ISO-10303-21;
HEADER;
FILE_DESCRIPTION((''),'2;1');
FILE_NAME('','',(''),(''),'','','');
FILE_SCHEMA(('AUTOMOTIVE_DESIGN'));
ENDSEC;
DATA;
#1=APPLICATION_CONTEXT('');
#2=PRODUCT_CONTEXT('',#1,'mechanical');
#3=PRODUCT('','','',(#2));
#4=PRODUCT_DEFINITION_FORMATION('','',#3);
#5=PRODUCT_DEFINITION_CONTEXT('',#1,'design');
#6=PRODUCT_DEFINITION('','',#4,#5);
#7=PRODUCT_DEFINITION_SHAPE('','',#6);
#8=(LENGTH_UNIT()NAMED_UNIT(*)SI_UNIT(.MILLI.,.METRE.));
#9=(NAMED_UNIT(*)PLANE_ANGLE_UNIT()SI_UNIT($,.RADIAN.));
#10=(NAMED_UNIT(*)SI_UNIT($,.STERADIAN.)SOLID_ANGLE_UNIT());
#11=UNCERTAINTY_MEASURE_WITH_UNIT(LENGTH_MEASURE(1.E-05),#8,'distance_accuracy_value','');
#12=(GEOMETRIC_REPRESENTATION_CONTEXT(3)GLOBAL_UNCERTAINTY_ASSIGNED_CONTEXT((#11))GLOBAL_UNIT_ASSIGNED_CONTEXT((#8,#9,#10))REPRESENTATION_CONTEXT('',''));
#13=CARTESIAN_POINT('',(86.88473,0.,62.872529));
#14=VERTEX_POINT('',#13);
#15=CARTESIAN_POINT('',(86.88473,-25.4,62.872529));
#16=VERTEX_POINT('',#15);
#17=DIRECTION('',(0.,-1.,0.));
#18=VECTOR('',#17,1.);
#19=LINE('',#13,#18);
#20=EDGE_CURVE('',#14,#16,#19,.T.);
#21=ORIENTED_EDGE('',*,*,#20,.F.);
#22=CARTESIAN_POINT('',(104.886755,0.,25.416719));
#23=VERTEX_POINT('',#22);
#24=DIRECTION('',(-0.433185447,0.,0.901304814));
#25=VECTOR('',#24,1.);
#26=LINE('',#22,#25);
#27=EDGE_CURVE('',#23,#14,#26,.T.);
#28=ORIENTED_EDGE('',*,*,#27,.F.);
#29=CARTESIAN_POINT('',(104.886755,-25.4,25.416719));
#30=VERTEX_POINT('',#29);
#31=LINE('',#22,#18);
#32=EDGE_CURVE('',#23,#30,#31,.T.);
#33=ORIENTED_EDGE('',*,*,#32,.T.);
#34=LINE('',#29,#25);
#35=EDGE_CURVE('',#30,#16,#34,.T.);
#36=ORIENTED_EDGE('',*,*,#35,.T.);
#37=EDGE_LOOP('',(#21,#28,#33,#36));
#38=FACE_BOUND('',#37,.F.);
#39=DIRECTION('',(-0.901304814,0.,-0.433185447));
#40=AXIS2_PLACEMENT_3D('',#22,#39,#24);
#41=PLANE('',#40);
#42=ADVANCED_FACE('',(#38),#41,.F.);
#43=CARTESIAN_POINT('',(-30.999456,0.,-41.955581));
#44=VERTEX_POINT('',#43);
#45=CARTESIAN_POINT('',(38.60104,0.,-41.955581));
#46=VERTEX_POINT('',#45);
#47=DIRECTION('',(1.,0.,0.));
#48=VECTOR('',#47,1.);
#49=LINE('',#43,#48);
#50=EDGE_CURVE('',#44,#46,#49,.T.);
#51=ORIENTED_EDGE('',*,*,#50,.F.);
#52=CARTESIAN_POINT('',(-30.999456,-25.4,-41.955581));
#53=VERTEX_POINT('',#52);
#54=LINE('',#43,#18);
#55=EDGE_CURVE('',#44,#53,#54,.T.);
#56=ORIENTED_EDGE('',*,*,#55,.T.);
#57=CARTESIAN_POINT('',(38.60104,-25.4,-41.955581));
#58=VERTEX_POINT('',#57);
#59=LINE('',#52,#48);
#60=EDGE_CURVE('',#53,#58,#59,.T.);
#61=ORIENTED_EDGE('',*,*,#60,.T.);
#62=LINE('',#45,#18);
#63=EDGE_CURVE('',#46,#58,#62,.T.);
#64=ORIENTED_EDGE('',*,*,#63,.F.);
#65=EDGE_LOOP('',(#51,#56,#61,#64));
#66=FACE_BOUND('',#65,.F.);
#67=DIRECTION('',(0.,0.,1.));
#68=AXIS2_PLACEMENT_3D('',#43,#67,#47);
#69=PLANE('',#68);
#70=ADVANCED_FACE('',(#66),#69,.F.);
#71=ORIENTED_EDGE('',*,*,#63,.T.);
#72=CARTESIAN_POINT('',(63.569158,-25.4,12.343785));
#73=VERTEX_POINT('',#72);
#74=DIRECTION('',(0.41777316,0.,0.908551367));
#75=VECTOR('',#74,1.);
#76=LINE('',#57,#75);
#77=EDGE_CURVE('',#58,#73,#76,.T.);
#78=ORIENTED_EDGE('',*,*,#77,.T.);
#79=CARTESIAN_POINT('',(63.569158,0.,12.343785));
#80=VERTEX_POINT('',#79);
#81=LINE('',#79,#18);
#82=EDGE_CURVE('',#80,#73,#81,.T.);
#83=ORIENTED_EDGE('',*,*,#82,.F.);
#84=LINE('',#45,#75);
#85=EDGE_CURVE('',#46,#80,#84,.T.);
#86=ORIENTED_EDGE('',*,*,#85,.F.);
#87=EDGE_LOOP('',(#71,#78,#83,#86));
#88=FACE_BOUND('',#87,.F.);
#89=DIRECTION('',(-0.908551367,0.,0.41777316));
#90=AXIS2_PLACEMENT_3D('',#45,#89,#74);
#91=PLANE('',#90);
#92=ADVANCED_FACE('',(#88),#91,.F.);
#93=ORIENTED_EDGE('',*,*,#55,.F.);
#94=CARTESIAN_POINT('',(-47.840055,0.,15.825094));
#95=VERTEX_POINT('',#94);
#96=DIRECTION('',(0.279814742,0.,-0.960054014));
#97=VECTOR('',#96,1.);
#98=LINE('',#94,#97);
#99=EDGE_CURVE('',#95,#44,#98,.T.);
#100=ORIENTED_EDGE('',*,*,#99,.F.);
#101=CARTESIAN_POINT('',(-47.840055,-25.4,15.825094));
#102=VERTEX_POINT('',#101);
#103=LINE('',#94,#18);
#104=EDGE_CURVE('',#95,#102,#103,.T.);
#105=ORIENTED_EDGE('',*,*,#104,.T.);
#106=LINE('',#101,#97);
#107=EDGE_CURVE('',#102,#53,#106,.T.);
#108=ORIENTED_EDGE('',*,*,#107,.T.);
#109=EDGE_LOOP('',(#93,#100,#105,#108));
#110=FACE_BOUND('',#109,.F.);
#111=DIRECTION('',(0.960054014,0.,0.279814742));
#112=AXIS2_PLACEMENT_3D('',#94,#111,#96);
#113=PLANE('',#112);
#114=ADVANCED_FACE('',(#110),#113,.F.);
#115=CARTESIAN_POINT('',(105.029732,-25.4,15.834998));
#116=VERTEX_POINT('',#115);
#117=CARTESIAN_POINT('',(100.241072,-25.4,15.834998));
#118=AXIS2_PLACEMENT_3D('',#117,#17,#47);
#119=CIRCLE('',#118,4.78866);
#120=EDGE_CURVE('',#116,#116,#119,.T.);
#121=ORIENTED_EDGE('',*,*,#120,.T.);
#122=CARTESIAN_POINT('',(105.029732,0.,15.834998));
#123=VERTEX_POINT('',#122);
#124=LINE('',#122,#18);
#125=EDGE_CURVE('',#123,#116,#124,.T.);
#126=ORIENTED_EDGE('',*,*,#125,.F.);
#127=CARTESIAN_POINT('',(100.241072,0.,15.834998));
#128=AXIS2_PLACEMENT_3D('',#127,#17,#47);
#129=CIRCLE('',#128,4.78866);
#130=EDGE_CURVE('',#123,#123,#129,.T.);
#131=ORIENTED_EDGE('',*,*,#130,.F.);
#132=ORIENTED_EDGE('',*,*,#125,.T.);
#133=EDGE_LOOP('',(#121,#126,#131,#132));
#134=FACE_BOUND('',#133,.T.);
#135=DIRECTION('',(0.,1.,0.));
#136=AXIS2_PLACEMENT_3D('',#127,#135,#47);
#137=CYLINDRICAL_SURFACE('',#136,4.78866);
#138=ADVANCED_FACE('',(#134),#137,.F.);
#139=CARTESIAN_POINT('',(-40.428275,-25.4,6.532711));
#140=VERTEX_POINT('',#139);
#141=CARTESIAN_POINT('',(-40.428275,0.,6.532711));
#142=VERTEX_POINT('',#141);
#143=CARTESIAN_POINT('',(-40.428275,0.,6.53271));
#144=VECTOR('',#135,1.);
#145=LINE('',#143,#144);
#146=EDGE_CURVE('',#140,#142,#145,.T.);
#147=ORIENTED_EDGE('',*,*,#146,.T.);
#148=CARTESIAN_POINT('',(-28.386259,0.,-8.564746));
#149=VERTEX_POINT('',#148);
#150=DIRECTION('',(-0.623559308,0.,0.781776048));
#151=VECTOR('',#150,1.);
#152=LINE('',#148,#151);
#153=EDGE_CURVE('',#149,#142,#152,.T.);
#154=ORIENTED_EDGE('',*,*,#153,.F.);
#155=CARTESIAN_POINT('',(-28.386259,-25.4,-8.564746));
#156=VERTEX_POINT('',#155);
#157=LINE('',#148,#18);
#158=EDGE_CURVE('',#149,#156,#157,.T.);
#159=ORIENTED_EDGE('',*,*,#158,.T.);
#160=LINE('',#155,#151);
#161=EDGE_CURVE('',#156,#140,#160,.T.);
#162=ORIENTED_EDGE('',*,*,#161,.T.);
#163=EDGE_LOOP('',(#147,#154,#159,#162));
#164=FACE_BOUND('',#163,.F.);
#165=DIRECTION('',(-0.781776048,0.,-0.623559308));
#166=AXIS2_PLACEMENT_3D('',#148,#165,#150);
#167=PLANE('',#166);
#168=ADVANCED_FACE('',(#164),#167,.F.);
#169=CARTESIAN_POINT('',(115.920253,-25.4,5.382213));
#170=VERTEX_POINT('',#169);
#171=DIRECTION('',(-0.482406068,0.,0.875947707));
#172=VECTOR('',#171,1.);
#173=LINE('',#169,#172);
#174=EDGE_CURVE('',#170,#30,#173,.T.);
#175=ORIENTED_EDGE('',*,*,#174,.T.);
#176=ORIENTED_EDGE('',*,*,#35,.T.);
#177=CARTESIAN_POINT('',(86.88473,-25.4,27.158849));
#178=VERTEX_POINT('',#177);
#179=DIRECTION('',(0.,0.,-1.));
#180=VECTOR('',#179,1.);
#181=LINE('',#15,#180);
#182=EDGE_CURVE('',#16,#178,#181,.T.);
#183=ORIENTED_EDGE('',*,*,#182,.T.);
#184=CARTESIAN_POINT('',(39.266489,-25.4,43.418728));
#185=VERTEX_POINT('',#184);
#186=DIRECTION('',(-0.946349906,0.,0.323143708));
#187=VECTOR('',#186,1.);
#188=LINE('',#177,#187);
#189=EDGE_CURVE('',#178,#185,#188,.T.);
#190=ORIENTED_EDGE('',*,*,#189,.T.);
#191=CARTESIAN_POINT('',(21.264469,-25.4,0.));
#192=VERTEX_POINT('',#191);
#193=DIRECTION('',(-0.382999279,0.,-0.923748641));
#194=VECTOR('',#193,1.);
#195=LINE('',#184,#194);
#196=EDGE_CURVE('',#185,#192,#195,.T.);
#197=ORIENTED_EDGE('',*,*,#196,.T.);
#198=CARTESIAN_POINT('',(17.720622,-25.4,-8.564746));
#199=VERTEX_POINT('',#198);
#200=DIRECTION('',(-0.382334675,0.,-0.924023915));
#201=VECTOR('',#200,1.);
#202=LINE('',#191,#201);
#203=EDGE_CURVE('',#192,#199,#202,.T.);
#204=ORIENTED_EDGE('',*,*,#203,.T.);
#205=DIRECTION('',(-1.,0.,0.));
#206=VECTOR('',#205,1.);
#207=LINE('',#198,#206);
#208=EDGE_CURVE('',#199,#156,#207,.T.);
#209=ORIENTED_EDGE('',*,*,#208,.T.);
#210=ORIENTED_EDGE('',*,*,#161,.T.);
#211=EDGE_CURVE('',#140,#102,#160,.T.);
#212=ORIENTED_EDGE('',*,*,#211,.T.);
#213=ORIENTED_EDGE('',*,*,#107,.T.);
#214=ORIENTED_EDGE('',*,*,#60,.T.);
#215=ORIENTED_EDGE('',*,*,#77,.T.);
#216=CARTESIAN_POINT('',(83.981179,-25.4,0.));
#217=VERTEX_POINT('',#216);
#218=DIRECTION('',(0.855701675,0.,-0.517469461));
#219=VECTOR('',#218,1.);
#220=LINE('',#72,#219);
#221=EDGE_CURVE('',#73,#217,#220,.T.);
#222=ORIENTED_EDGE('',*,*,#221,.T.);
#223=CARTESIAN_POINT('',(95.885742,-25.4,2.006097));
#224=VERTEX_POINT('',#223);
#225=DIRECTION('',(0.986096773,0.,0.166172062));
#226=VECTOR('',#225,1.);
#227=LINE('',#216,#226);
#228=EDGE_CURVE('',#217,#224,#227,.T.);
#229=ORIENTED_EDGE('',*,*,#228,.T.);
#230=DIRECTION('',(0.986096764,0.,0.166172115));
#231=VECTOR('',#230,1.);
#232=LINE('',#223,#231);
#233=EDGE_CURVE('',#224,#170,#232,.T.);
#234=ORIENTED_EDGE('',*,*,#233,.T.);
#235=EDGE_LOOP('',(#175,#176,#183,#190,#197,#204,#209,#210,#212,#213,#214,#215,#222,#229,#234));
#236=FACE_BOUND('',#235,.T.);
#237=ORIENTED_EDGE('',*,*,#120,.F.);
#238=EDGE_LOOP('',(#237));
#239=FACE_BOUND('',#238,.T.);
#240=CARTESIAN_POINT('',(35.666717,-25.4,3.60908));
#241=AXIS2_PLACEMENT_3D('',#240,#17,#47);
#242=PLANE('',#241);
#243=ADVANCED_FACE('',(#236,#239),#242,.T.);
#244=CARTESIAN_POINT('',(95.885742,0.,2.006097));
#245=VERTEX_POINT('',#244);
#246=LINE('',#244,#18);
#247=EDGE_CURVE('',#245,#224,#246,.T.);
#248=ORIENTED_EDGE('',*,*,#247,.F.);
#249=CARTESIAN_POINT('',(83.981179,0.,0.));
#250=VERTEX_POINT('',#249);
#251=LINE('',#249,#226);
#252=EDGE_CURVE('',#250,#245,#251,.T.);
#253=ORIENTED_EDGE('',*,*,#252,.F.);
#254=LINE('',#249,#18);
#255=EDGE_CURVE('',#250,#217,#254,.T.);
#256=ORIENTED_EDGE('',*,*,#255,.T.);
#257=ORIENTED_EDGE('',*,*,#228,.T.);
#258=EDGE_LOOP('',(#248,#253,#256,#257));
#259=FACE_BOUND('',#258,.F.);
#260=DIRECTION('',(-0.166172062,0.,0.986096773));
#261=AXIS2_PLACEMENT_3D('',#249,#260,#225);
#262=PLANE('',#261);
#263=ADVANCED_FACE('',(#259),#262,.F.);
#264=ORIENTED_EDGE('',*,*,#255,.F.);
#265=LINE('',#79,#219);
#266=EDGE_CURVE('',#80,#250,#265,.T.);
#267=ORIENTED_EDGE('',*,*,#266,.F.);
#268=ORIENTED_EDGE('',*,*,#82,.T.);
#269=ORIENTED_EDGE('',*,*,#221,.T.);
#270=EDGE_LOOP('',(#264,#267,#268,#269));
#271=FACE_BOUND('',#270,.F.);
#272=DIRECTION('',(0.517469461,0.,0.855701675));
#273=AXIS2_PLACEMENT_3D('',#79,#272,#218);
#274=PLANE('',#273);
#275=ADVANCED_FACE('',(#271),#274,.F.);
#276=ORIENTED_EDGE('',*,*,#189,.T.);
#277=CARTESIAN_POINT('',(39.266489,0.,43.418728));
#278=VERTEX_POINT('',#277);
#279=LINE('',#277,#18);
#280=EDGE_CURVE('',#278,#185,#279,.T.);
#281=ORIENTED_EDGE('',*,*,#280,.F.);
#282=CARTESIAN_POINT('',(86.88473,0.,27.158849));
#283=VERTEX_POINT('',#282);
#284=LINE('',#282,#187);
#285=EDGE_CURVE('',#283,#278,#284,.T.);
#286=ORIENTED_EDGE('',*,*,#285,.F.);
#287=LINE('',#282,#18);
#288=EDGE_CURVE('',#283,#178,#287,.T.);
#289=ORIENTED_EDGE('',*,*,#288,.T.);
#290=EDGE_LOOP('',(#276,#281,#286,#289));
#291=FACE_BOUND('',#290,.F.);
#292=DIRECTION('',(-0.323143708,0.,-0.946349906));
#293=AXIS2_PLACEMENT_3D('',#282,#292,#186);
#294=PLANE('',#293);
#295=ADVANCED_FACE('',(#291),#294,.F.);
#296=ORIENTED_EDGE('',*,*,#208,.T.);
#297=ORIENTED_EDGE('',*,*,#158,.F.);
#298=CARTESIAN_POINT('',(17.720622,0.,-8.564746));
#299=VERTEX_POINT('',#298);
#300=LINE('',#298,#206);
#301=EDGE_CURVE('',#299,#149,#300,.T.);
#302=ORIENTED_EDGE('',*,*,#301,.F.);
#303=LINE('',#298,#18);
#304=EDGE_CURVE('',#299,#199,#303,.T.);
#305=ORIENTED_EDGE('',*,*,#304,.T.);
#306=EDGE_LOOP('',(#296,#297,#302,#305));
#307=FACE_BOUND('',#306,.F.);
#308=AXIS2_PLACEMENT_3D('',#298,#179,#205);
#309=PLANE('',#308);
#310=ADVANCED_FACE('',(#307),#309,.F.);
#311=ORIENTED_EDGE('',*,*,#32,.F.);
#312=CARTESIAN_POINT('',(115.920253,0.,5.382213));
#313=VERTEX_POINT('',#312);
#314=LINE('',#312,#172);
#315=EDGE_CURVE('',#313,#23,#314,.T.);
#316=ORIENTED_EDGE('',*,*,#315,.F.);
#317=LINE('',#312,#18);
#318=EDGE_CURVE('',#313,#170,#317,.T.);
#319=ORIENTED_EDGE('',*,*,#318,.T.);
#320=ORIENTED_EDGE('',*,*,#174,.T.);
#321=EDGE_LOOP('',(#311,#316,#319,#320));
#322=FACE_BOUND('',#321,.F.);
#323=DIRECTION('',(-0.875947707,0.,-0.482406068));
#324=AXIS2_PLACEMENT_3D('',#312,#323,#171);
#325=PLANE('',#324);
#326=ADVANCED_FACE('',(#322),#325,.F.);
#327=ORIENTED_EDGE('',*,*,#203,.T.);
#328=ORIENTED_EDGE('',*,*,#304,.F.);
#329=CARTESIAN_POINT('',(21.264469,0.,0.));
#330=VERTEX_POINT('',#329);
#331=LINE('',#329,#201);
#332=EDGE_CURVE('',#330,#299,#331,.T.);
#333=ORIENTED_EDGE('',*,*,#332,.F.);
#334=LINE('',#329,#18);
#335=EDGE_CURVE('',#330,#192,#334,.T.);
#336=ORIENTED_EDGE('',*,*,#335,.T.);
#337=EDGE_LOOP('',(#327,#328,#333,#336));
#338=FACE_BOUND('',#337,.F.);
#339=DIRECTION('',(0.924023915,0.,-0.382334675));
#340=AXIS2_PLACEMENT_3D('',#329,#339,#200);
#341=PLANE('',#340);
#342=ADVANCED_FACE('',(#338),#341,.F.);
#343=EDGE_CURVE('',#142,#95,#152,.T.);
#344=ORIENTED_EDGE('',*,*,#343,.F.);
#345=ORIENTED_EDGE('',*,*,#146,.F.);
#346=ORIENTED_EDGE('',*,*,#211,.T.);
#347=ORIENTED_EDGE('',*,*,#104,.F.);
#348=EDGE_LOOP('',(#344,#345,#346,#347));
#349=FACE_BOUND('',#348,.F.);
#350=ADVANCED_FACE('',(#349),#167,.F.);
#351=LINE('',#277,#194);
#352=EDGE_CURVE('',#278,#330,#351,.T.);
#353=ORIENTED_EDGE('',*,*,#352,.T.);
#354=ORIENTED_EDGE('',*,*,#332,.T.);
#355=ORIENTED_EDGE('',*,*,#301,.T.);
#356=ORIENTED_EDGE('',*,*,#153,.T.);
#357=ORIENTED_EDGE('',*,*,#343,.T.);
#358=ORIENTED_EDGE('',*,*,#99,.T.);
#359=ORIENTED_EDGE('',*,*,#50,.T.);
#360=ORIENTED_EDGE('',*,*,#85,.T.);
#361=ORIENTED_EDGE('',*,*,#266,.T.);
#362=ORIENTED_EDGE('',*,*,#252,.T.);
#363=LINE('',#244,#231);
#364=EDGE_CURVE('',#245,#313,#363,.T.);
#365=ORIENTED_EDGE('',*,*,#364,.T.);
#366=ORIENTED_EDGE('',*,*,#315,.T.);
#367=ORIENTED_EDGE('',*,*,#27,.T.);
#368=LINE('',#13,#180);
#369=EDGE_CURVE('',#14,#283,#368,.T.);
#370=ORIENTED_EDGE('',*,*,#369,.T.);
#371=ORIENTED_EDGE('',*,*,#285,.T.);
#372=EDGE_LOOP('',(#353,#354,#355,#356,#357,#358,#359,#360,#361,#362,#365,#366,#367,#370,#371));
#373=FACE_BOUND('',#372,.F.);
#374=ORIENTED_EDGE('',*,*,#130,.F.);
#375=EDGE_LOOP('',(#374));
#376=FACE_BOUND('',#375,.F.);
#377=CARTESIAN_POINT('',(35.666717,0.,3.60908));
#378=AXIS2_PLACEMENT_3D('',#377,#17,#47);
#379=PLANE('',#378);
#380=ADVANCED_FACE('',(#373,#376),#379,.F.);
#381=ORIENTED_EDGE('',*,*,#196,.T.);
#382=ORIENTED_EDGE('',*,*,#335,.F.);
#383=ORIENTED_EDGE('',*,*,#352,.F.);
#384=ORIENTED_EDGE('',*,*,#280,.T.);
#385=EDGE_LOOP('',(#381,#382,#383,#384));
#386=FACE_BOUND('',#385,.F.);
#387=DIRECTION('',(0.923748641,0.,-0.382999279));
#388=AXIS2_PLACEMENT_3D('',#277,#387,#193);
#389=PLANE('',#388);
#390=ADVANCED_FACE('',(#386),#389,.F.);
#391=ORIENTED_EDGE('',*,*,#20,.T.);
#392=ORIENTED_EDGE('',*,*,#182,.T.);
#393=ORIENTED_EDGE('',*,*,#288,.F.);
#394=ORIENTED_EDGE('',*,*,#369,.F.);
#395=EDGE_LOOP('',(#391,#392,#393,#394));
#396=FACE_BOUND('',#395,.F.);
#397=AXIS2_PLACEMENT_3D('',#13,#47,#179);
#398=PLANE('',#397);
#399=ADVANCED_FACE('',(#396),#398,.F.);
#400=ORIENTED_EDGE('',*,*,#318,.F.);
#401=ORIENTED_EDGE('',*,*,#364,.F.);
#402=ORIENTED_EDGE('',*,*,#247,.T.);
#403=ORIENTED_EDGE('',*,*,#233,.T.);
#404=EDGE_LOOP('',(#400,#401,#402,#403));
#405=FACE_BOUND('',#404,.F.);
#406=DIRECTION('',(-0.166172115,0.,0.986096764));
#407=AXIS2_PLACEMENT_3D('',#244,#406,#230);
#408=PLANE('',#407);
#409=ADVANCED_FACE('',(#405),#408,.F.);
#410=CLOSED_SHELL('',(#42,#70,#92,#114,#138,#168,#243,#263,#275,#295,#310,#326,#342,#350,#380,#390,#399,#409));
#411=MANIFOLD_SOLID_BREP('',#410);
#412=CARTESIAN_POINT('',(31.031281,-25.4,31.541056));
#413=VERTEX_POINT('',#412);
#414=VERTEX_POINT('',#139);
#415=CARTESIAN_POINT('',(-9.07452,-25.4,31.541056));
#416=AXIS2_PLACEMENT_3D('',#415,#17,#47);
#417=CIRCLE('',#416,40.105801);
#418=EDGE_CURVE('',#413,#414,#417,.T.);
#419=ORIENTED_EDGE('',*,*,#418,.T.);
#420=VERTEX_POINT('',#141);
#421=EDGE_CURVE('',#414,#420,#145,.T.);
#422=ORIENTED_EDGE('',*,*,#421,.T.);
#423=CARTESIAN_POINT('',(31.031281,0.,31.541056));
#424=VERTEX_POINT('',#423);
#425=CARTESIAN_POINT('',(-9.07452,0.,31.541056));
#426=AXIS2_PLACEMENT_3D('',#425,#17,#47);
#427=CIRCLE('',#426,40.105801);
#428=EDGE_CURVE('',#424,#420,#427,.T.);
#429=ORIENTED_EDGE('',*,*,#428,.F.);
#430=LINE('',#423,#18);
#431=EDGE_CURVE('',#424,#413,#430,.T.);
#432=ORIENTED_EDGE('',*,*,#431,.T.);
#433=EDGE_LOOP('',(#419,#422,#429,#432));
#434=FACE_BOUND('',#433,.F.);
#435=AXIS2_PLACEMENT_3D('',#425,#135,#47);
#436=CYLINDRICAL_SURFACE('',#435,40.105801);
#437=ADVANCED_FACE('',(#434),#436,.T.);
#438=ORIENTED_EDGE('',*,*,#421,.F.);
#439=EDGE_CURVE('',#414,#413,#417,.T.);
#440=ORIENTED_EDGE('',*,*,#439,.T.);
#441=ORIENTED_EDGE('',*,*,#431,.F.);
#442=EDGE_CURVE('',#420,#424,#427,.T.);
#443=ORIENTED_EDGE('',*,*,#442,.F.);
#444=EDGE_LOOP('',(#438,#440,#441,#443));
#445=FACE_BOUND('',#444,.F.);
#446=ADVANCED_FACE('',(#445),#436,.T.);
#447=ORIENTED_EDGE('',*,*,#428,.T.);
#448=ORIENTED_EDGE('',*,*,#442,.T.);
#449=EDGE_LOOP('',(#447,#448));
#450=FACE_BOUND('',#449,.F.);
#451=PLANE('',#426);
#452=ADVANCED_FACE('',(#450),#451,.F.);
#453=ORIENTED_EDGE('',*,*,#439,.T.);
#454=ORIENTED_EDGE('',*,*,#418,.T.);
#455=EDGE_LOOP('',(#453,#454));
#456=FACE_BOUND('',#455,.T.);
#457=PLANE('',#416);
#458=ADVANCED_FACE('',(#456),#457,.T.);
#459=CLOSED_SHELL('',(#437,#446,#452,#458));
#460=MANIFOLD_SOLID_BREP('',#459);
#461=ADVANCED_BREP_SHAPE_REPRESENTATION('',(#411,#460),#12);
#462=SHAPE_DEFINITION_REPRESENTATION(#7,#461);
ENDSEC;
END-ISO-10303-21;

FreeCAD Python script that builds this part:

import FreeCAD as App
import Part
import Sketcher
Q = App.Units.Quantity

doc = App.newDocument("Part")
params = doc.addObject("Spreadsheet::Sheet", "Params")
for row, (alias, value) in enumerate([
    ("pad1_length", "1 in"),
], start=1):
    params.set(f"A{row}", alias)
    params.set(f"B{row}", "=" + value)
    params.setAlias(f"B{row}", alias)

body = doc.addObject("PartDesign::Body", "Body")
body.AllowCompound = True

# Sketch on XZ plane
sketch1 = body.newObject("Sketcher::SketchObject", "Sketch")
sketch1.AttachmentSupport = (doc.getObject("XZ_Plane"), [""])
sketch1.MapMode = "FlatFace"
sketch1.addGeometry([
    Part.LineSegment(App.Vector(38.6, -42, 0), App.Vector(63.6, 12.3, 0)),  # 0
    Part.LineSegment(App.Vector(63.6, 12.3, 0), App.Vector(84, 0, 0)),  # 1
    Part.LineSegment(App.Vector(84, 0, 0), App.Vector(95.9, 2, 0)),  # 2
    Part.LineSegment(App.Vector(95.9, 2, 0), App.Vector(115.9, 5.4, 0)),  # 3
    Part.LineSegment(App.Vector(115.9, 5.4, 0), App.Vector(104.9, 25.4, 0)),  # 4
    Part.LineSegment(App.Vector(104.9, 25.4, 0), App.Vector(86.9, 62.9, 0)),  # 5
    Part.LineSegment(App.Vector(86.9, 62.9, 0), App.Vector(86.9, 27.2, 0)),  # 6
    Part.LineSegment(App.Vector(86.9, 27.2, 0), App.Vector(39.3, 43.4, 0)),  # 7
    Part.LineSegment(App.Vector(39.3, 43.4, 0), App.Vector(21.3, 0, 0)),  # 8
    Part.LineSegment(App.Vector(21.3, 0, 0), App.Vector(17.7, -8.6, 0)),  # 9
    Part.LineSegment(App.Vector(17.7, -8.6, 0), App.Vector(-28.4, -8.6, 0)),  # 10
    Part.LineSegment(App.Vector(-28.4, -8.6, 0), App.Vector(-40.4, 6.5, 0)),  # 11
    Part.LineSegment(App.Vector(-40.4, 6.5, 0), App.Vector(-47.8, 15.8, 0)),  # 12
    Part.LineSegment(App.Vector(-47.8, 15.8, 0), App.Vector(-31, -42, 0)),  # 13
    Part.LineSegment(App.Vector(-31, -42, 0), App.Vector(38.6, -42, 0)),  # 14
    Part.Circle(App.Vector(100.2, 15.8, 0), App.Vector(0, 0, 1), 4.8),  # 15
    Part.Circle(App.Vector(-9.1, 31.5, 0), App.Vector(0, 0, 1), 40.1),  # 16
], False)
sketch1.addConstraint([
    Sketcher.Constraint("Coincident", 0, 2, 1, 1),
    Sketcher.Constraint("Coincident", 1, 2, 2, 1),
    Sketcher.Constraint("Coincident", 2, 2, 3, 1),
    Sketcher.Constraint("Coincident", 3, 2, 4, 1),
    Sketcher.Constraint("Coincident", 4, 2, 5, 1),
    Sketcher.Constraint("Coincident", 5, 2, 6, 1),
    Sketcher.Constraint("Coincident", 6, 2, 7, 1),
    Sketcher.Constraint("Coincident", 7, 2, 8, 1),
    Sketcher.Constraint("Coincident", 8, 2, 9, 1),
    Sketcher.Constraint("Coincident", 9, 2, 10, 1),
    Sketcher.Constraint("Coincident", 10, 2, 11, 1),
    Sketcher.Constraint("Coincident", 11, 2, 12, 1),
    Sketcher.Constraint("Coincident", 12, 2, 13, 1),
    Sketcher.Constraint("Coincident", 13, 2, 14, 1),
    Sketcher.Constraint("Coincident", 14, 2, 0, 1),
    Sketcher.Constraint("Vertical", 6),
    Sketcher.Constraint("Horizontal", 10),
    Sketcher.Constraint("Horizontal", 14),
    Sketcher.Constraint("PointOnObject", 1, 2, -1),
    Sketcher.Constraint("PointOnObject", 8, 2, -1),
    Sketcher.Constraint("Parallel", 2, 3),
    Sketcher.Constraint("Parallel", 11, 12),
    Sketcher.Constraint("Diameter", 16, 80.211602),
    Sketcher.Constraint("Diameter", 15, 9.57732),
    Sketcher.Constraint("DistanceX", -1, 1, 4, 2, Q("4.1293998 in")),
    Sketcher.Constraint("DistanceY", 13, 2, 10, 2, Q("1.3145998 in")),
    Sketcher.Constraint("DistanceX", 10, 2, 10, 1, 46.106881),
    Sketcher.Constraint("DistanceY", 6, 2, 6, 1, 35.71368),
    Sketcher.Constraint("DistanceX", 16, 3, 1, 2, 93.055699),
    Sketcher.Constraint("DistanceY", 2, 2, 15, 3, 13.828901),
    Sketcher.Constraint("DistanceX", 4, 2, 3, 2, 11.033498),
    Sketcher.Constraint("DistanceY", 7, 2, 5, 2, 19.453801),
    Sketcher.Constraint("DistanceY", 9, 2, 16, 3, 40.105802),
    Sketcher.Constraint("DistanceX", 12, 2, 13, 2, 16.840599),
    Sketcher.Constraint("Distance", 2, 12.072408),
    Sketcher.Constraint("Distance", 8, 47.002752),
    Sketcher.Constraint("Distance", 11, 19.311741),
    Sketcher.Constraint("DistanceX", 14, 1, 14, 2, 69.600496),
    Sketcher.Constraint("DistanceX", 16, 3, -1, 1, 9.07452),
    Sketcher.Constraint("DistanceX", -1, 1, 0, 2, 63.569158),
    Sketcher.Constraint("DistanceX", -1, 1, 2, 2, 95.885742),
    Sketcher.Constraint("DistanceY", -1, 1, 4, 2, 25.416719),
    Sketcher.Constraint("DistanceX", -1, 1, 5, 2, 86.88473),
    Sketcher.Constraint("DistanceY", -1, 1, 5, 2, 62.872529),
    Sketcher.Constraint("DistanceX", -1, 1, 7, 2, 39.266489),
    Sketcher.Constraint("DistanceX", -1, 1, 9, 2, 17.720622),
    Sketcher.Constraint("DistanceY", -1, 1, 11, 2, 6.53271),
    Sketcher.Constraint("DistanceY", 13, 2, -1, 1, 41.955581),
    Sketcher.Constraint("DistanceX", -1, 1, 14, 2, 38.60104),
    Sketcher.Constraint("DistanceY", 0, 2, 16, 3, 19.197271),
    Sketcher.Constraint("DistanceX", 2, 2, 15, 3, 4.35533),
])
pad1 = body.newObject("PartDesign::Pad", "Pad")
pad1.Profile = sketch1
pad1.setExpression("Length", "Params.pad1_length")

doc.recompute()
